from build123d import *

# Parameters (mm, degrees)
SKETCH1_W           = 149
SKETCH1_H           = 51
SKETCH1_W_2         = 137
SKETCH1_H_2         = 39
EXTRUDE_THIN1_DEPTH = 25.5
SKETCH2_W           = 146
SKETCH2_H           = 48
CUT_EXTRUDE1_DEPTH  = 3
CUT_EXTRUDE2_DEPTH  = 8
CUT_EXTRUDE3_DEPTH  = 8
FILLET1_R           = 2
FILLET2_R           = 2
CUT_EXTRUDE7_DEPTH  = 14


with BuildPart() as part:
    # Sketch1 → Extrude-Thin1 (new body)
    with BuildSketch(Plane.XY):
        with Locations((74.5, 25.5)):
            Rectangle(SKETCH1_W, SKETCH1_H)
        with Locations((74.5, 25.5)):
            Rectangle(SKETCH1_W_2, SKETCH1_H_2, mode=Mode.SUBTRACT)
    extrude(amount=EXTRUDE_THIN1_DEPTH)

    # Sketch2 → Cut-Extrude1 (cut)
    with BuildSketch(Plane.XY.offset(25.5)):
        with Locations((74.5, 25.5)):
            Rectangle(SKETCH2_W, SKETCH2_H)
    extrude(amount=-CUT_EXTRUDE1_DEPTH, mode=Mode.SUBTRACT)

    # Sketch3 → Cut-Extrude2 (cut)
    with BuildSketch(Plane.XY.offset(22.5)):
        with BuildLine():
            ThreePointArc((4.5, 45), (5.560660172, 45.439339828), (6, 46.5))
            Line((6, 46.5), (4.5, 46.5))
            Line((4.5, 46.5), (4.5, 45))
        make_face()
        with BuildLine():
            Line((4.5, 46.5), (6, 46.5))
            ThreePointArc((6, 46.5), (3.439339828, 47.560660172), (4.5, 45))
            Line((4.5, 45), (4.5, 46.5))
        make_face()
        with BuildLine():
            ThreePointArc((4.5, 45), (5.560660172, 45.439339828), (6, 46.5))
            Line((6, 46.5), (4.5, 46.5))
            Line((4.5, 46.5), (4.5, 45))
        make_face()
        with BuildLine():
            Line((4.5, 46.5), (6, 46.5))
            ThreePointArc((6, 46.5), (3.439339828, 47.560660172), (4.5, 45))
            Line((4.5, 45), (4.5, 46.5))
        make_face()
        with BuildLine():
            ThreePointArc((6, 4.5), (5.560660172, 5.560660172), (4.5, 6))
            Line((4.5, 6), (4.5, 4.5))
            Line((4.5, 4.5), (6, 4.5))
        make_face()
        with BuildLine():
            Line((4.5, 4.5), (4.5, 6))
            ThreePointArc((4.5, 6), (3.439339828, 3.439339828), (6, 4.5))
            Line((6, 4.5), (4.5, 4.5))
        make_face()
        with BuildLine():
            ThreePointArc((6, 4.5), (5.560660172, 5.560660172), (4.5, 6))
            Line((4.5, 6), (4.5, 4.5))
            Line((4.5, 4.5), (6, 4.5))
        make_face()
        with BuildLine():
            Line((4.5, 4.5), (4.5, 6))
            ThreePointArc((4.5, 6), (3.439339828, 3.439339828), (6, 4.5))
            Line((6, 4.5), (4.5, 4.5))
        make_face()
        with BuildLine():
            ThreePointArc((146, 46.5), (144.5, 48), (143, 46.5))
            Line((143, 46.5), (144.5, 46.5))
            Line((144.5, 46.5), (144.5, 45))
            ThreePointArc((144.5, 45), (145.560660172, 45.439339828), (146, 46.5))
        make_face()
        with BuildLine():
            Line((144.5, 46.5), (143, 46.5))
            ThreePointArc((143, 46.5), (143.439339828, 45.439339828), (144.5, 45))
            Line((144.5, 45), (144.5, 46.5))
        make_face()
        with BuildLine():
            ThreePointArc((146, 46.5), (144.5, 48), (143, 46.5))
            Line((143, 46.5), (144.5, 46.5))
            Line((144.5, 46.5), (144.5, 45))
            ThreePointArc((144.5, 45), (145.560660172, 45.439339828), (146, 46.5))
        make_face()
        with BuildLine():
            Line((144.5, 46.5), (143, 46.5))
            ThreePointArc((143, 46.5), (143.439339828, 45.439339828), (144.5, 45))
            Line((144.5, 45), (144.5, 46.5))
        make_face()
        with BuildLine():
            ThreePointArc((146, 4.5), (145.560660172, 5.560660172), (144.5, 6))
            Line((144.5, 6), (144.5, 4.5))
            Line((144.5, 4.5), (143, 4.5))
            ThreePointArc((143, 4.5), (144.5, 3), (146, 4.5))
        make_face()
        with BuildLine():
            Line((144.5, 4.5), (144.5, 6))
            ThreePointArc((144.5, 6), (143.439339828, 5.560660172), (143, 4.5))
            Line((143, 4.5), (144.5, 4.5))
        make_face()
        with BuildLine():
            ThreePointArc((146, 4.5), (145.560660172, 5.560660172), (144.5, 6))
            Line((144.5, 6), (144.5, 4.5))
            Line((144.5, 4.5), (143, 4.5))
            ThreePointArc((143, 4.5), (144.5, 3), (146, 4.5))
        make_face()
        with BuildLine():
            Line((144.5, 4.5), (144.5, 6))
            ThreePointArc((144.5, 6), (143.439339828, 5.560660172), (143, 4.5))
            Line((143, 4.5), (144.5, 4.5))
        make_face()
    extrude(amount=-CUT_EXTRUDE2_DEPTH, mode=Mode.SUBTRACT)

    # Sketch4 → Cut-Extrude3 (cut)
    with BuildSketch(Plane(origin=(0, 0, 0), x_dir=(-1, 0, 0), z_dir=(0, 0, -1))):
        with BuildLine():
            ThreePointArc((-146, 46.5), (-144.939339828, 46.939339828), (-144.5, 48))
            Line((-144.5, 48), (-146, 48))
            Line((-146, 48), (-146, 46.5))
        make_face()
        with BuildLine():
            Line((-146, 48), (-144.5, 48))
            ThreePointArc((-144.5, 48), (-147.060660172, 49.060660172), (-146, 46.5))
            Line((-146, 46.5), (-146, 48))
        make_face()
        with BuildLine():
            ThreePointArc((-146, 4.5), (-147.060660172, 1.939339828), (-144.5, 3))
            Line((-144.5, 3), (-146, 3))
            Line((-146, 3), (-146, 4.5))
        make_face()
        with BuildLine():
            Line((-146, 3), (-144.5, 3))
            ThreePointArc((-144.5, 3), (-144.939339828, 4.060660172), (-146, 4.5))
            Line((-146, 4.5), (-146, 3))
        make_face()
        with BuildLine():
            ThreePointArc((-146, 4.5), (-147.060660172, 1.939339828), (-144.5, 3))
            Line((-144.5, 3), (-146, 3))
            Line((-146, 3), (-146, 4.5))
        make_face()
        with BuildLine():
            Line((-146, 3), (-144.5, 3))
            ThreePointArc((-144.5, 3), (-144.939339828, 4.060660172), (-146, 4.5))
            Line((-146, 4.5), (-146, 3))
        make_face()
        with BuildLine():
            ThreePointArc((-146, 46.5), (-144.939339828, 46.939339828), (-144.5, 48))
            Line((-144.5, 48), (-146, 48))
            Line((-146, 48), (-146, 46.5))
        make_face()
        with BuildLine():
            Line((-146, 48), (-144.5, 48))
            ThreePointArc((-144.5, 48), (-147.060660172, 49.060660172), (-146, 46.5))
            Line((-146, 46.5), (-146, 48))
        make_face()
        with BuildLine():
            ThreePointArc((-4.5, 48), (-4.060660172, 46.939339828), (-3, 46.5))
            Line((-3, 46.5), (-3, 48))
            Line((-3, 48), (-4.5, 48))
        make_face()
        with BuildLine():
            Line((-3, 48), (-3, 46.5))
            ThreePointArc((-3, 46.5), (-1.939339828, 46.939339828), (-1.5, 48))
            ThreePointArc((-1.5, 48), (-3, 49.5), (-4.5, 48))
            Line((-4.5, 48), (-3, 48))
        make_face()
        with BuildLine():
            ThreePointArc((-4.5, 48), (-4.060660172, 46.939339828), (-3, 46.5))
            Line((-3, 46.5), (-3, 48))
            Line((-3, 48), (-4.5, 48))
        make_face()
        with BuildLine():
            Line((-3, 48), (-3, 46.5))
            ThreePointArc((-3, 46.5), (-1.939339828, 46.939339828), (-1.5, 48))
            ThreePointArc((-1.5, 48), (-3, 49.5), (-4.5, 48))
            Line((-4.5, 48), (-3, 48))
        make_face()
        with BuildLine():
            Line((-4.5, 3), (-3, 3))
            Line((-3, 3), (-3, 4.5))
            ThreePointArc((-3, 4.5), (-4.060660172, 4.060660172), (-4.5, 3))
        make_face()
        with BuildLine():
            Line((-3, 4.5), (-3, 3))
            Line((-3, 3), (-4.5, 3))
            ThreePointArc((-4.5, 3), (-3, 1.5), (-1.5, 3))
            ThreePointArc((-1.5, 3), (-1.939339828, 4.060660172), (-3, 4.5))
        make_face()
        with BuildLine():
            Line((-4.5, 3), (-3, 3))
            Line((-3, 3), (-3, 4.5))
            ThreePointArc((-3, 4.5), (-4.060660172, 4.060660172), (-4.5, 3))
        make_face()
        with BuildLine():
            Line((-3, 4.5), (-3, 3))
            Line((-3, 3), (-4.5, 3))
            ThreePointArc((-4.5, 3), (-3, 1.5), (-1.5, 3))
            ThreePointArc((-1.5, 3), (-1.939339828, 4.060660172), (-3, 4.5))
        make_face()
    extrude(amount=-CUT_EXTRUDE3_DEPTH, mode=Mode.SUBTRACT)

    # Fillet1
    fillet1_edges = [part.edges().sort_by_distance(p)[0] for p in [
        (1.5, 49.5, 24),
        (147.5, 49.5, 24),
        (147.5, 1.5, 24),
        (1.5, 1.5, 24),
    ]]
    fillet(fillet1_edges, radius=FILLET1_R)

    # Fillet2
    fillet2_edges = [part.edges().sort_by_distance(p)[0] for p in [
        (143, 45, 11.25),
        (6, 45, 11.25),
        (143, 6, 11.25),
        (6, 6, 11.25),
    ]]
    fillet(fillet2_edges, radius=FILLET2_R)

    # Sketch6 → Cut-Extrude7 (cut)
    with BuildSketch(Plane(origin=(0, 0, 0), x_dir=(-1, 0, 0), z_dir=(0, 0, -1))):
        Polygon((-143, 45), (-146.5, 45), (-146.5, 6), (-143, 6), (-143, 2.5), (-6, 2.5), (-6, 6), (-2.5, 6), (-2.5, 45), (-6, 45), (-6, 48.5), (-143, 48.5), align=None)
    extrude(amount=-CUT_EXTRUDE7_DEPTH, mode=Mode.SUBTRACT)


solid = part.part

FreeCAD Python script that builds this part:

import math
import FreeCAD as App
import Part
import Sketcher
from FreeCAD import Vector
Q = App.Units.Quantity


def edges_at(feature, points):
    """Names of the edges that pass closest to the given points."""
    edges = feature.Shape.Edges
    near = lambda p: min(range(len(edges)), key=lambda i: edges[i].distToShape(Part.Vertex(*p))[0])
    return sorted({f"Edge{near(p) + 1}" for p in points})


def add_polygon(sketch, points):
    """Adds a closed chain of lines whose ends are joined by coincident constraints."""
    first, n = sketch.GeometryCount, len(points)
    for a, b in zip(points, points[1:] + points[:1]):
        sketch.addGeometry(Part.LineSegment(App.Vector(*a, 0), App.Vector(*b, 0)), False)
    for i in range(n):
        sketch.addConstraint(Sketcher.Constraint("Coincident", first + i, 2, first + (i + 1) % n, 1))

doc = App.newDocument("Part")
body = doc.addObject("PartDesign::Body", "Body")

sketch1 = body.newObject("Sketcher::SketchObject", "Sketch")
sketch1.AttachmentSupport = (doc.getObject("XY_Plane"), [""])
sketch1.MapMode = "FlatFace"
add_polygon(sketch1, [(0, 51), (0, 0), (149, 0), (149, 51)])
add_polygon(sketch1, [(143, 6), (6, 6), (6, 45), (143, 45)])
sketch1.addConstraint([
    Sketcher.Constraint("Vertical", 0),
    Sketcher.Constraint("Horizontal", 1),
    Sketcher.Constraint("Vertical", 2),
    Sketcher.Constraint("Horizontal", 3),
    Sketcher.Constraint("Horizontal", 4),
    Sketcher.Constraint("Vertical", 5),
    Sketcher.Constraint("Horizontal", 6),
    Sketcher.Constraint("Vertical", 7),
    Sketcher.Constraint("Coincident", 0, 2, -1, 1),
    Sketcher.Constraint("DistanceX", 1, 1, 1, 2, Q("149 mm")),
    Sketcher.Constraint("DistanceX", 4, 2, 4, 1, Q("137 mm")),
    Sketcher.Constraint("DistanceY", 0, 2, 0, 1, Q("51 mm")),
    Sketcher.Constraint("DistanceY", 5, 1, 5, 2, Q("39 mm")),
    Sketcher.Constraint("DistanceX", -1, 1, 4, 2, Q("6 mm")),
    Sketcher.Constraint("DistanceY", -1, 1, 4, 2, Q("6 mm")),
])
pad1 = body.newObject("PartDesign::Pad", "Pad")
pad1.Profile = sketch1
pad1.Length = 25.5

sketch2 = body.newObject("Sketcher::SketchObject", "Sketch001")
sketch2.AttachmentSupport = (doc.getObject("XY_Plane"), [""])
sketch2.MapMode = "FlatFace"
sketch2.AttachmentOffset = App.Placement(Vector(0, 0, 25.5), App.Rotation())
add_polygon(sketch2, [(2, 50), (2, 2), (148, 2), (148, 50)])
sketch2.addConstraint([
    Sketcher.Constraint("Vertical", 0),
    Sketcher.Constraint("Horizontal", 1),
    Sketcher.Constraint("Vertical", 2),
    Sketcher.Constraint("Horizontal", 3),
    Sketcher.Constraint("DistanceX", 1, 1, 1, 2, Q("146 mm")),
    Sketcher.Constraint("DistanceY", 0, 2, 0, 1, Q("48 mm")),
    Sketcher.Constraint("DistanceX", -1, 1, 0, 2, Q("1.5 mm")),
    Sketcher.Constraint("DistanceY", -1, 1, 0, 2, Q("1.5 mm")),
])
pocket1 = body.newObject("PartDesign::Pocket", "Pocket")
pocket1.Profile = sketch2
pocket1.Length = 3

sketch3 = body.newObject("Sketcher::SketchObject", "Sketch002")
sketch3.AttachmentSupport = (doc.getObject("XY_Plane"), [""])
sketch3.MapMode = "FlatFace"
sketch3.AttachmentOffset = App.Placement(Vector(0, 0, 22.5), App.Rotation())
sketch3.addGeometry([
    Part.ArcOfCircle(Part.Circle(Vector(4.5, 46.5, 0), Vector(0, 0, 1), 1.5), math.radians(-90), math.radians(0)),
    Part.ArcOfCircle(Part.Circle(Vector(4.5, 46.5, 0), Vector(0, 0, 1), 1.5), math.radians(0), math.radians(270)),
    Part.ArcOfCircle(Part.Circle(Vector(4.5, 4.5, 0), Vector(0, 0, 1), 1.5), math.radians(0), math.radians(90)),
    Part.ArcOfCircle(Part.Circle(Vector(4.5, 4.5, 0), Vector(0, 0, 1), 1.5), math.radians(90), math.radians(360)),
    Part.ArcOfCircle(Part.Circle(Vector(144.5, 46.5, 0), Vector(0, 0, 1), 1.5), math.radians(0), math.radians(180)),
    Part.ArcOfCircle(Part.Circle(Vector(144.5, 46.5, 0), Vector(0, 0, 1), 1.5), math.radians(180), math.radians(270)),
    Part.ArcOfCircle(Part.Circle(Vector(144.5, 46.5, 0), Vector(0, 0, 1), 1.5), math.radians(-90), math.radians(0)),
    Part.ArcOfCircle(Part.Circle(Vector(144.5, 4.5, 0), Vector(0, 0, 1), 1.5), math.radians(0), math.radians(90)),
    Part.ArcOfCircle(Part.Circle(Vector(144.5, 4.5, 0), Vector(0, 0, 1), 1.5), math.radians(90), math.radians(180)),
    Part.ArcOfCircle(Part.Circle(Vector(144.5, 4.5, 0), Vector(0, 0, 1), 1.5), math.radians(180), math.radians(360)),
], False)
sketch3.addConstraint([
    Sketcher.Constraint("Tangent", 0, 1, 1, 2),
    Sketcher.Constraint("Coincident", 1, 1, 0, 2),
    Sketcher.Constraint("Tangent", 2, 1, 3, 2),
    Sketcher.Constraint("Coincident", 3, 1, 2, 2),
    Sketcher.Constraint("Tangent", 4, 2, 5, 1),
    Sketcher.Constraint("Tangent", 5, 2, 6, 1),
    Sketcher.Constraint("Tangent", 6, 2, 4, 1),
    Sketcher.Constraint("Tangent", 7, 2, 8, 1),
    Sketcher.Constraint("Tangent", 8, 2, 9, 1),
    Sketcher.Constraint("Tangent", 9, 2, 7, 1),
    Sketcher.Constraint("Equal", 1, 2),
    Sketcher.Constraint("Equal", 3, 4),
    Sketcher.Constraint("Equal", 6, 7),
    Sketcher.Constraint("Horizontal", 1, 3, 4, 3),
    Sketcher.Constraint("Horizontal", 3, 3, 7, 3),
    Sketcher.Constraint("Horizontal", 6, 3, 1, 1),
    Sketcher.Constraint("Horizontal", 9, 3, 2, 1),
    Sketcher.Constraint("Horizontal", 1, 1, 4, 2),
    Sketcher.Constraint("Horizontal", 4, 2, 6, 2),
    Sketcher.Constraint("Horizontal", 2, 1, 8, 2),
    Sketcher.Constraint("Horizontal", 8, 2, 9, 2),
    Sketcher.Constraint("Vertical", 1, 3, 2, 3),
    Sketcher.Constraint("Vertical", 6, 3, 7, 3),
    Sketcher.Constraint("Vertical", 3, 3, 0, 1),
    Sketcher.Constraint("Vertical", 0, 1, 3, 1),
    Sketcher.Constraint("Vertical", 9, 3, 5, 2),
    Sketcher.Constraint("Vertical", 5, 2, 7, 2),
    Sketcher.Constraint("Radius", 0, Q("1.5 mm")),
    Sketcher.Constraint("DistanceY", -1, 1, 0, 1, Q("45 mm")),
    Sketcher.Constraint("DistanceX", -1, 1, 1, 1, Q("6 mm")),
    Sketcher.Constraint("DistanceY", -1, 1, 3, 1, Q("6 mm")),
    Sketcher.Constraint("DistanceX", -1, 1, 4, 2, Q("143 mm")),
])
pocket2 = body.newObject("PartDesign::Pocket", "Pocket001")
pocket2.Profile = sketch3
pocket2.Length = 8

sketch4 = body.newObject("Sketcher::SketchObject", "Sketch003")
sketch4.AttachmentSupport = (doc.getObject("XY_Plane"), [""])
sketch4.MapMode = "FlatFace"
sketch4.addGeometry([
    Part.ArcOfCircle(Part.Circle(Vector(146, 48, 0), Vector(0, 0, 1), 1.5), math.radians(180), math.radians(270)),
    Part.ArcOfCircle(Part.Circle(Vector(146, 48, 0), Vector(0, 0, 1), 1.5), math.radians(-90), math.radians(180)),
    Part.ArcOfCircle(Part.Circle(Vector(146, 3, 0), Vector(0, 0, 1), 1.5), math.radians(180), math.radians(450)),
    Part.ArcOfCircle(Part.Circle(Vector(146, 3, 0), Vector(0, 0, 1), 1.5), math.radians(90), math.radians(180)),
    Part.ArcOfCircle(Part.Circle(Vector(3, 48, 0), Vector(0, 0, 1), 1.5), math.radians(-90), math.radians(0)),
    Part.ArcOfCircle(Part.Circle(Vector(3, 48, 0), Vector(0, 0, 1), 1.5), math.radians(180), math.radians(270)),
    Part.ArcOfCircle(Part.Circle(Vector(3, 48, 0), Vector(0, 0, 1), 1.5), math.radians(0), math.radians(180)),
    Part.ArcOfCircle(Part.Circle(Vector(3, 3, 0), Vector(0, 0, 1), 1.5), math.radians(0), math.radians(90)),
    Part.ArcOfCircle(Part.Circle(Vector(3, 3, 0), Vector(0, 0, 1), 1.5), math.radians(180), math.radians(360)),
    Part.ArcOfCircle(Part.Circle(Vector(3, 3, 0), Vector(0, 0, 1), 1.5), math.radians(90), math.radians(180)),
], False)
sketch4.addConstraint([
    Sketcher.Constraint("Tangent", 0, 1, 1, 2),
    Sketcher.Constraint("Coincident", 1, 1, 0, 2),
    Sketcher.Constraint("Tangent", 2, 1, 3, 2),
    Sketcher.Constraint("Coincident", 3, 1, 2, 2),
    Sketcher.Constraint("Tangent", 4, 1, 5, 2),
    Sketcher.Constraint("Tangent", 5, 1, 6, 2),
    Sketcher.Constraint("Tangent", 6, 1, 4, 2),
    Sketcher.Constraint("Tangent", 7, 1, 8, 2),
    Sketcher.Constraint("Tangent", 8, 1, 9, 2),
    Sketcher.Constraint("Tangent", 9, 1, 7, 2),
    Sketcher.Constraint("Equal", 1, 2),
    Sketcher.Constraint("Equal", 3, 4),
    Sketcher.Constraint("Equal", 6, 7),
    Sketcher.Constraint("Horizontal", 1, 3, 4, 3),
    Sketcher.Constraint("Horizontal", 3, 3, 7, 3),
    Sketcher.Constraint("Horizontal", 6, 3, 0, 1),
    Sketcher.Constraint("Horizontal", 9, 3, 2, 1),
    Sketcher.Constraint("Horizontal", 0, 1, 5, 1),
    Sketcher.Constraint("Horizontal", 5, 1, 6, 1),
    Sketcher.Constraint("Horizontal", 2, 1, 7, 1),
    Sketcher.Constraint("Horizontal", 7, 1, 8, 1),
    Sketcher.Constraint("Vertical", 1, 3, 2, 3),
    Sketcher.Constraint("Vertical", 6, 3, 7, 3),
    Sketcher.Constraint("Vertical", 3, 3, 1, 1),
    Sketcher.Constraint("Vertical", 1, 1, 3, 1),
    Sketcher.Constraint("Vertical", 9, 3, 4, 1),
    Sketcher.Constraint("Vertical", 4, 1, 9, 1),
    Sketcher.Constraint("Radius", 0, Q("1.5 mm")),
    Sketcher.Constraint("DistanceX", -1, 1, 0, 3, Q("146 mm")),
    Sketcher.Constraint("DistanceY", -1, 1, 0, 3, Q("48 mm")),
    Sketcher.Constraint("DistanceY", -1, 1, 2, 3, Q("3 mm")),
    Sketcher.Constraint("DistanceX", -1, 1, 4, 3, Q("3 mm")),
])
pocket3 = body.newObject("PartDesign::Pocket", "Pocket002")
pocket3.Profile = sketch4
pocket3.Length = 8
pocket3.Reversed = True
doc.recompute()

fillet = body.newObject("PartDesign::Fillet", "Fillet")
fillet.Base = (pocket3, edges_at(pocket3, [
    (1.5, 49.5, 24),
    (147.5, 49.5, 24),
    (147.5, 1.5, 24),
    (1.5, 1.5, 24),
]))
fillet.Radius = 2
doc.recompute()

fillet2 = body.newObject("PartDesign::Fillet", "Fillet001")
fillet2.Base = (fillet, edges_at(fillet, [
    (143, 45, 11.25),
    (6, 45, 11.25),
    (143, 6, 11.25),
    (6, 6, 11.25),
]))
fillet2.Radius = 2

sketch5 = body.newObject("Sketcher::SketchObject", "Sketch004")
sketch5.AttachmentSupport = (doc.getObject("XY_Plane"), [""])
sketch5.MapMode = "FlatFace"
add_polygon(sketch5, [(143, 45), (146.5, 45), (146.5, 6), (143, 6), (143, 2.5), (6, 2.5), (6, 6), (2.5, 6), (2.5, 45), (6, 45), (6, 48.5), (143, 48.5)])
sketch5.addConstraint([
    Sketcher.Constraint("Horizontal", 0),
    Sketcher.Constraint("Vertical", 1),
    Sketcher.Constraint("Horizontal", 2),
    Sketcher.Constraint("Vertical", 3),
    Sketcher.Constraint("Horizontal", 4),
    Sketcher.Constraint("Vertical", 5),
    Sketcher.Constraint("Horizontal", 6),
    Sketcher.Constraint("Vertical", 7),
    Sketcher.Constraint("Horizontal", 8),
    Sketcher.Constraint("Vertical", 9),
    Sketcher.Constraint("Horizontal", 10),
    Sketcher.Constraint("Vertical", 11),
    Sketcher.Constraint("Horizontal", 2, 2, 5, 2),
    Sketcher.Constraint("Horizontal", 0, 2, 7, 2),
    Sketcher.Constraint("Vertical", 5, 2, 8, 2),
    Sketcher.Constraint("Vertical", 3, 2, 10, 2),
    Sketcher.Constraint("Equal", 2, 6),
    Sketcher.Constraint("Equal", 8, 3),
    Sketcher.Constraint("Equal", 5, 9),
    Sketcher.Constraint("DistanceX", 4, 2, 4, 1, Q("137 mm")),
    Sketcher.Constraint("DistanceY", 1, 2, 1, 1, Q("39 mm")),
    Sketcher.Constraint("DistanceX", 0, 1, 0, 2, Q("3.5 mm")),
    Sketcher.Constraint("DistanceY", -1, 1, 0, 2, Q("45 mm")),
    Sketcher.Constraint("DistanceX", -1, 1, 2, 2, Q("143 mm")),
])
pocket4 = body.newObject("PartDesign::Pocket", "Pocket003")
pocket4.Profile = sketch5
pocket4.Length = 14
pocket4.Reversed = True

doc.recompute()
